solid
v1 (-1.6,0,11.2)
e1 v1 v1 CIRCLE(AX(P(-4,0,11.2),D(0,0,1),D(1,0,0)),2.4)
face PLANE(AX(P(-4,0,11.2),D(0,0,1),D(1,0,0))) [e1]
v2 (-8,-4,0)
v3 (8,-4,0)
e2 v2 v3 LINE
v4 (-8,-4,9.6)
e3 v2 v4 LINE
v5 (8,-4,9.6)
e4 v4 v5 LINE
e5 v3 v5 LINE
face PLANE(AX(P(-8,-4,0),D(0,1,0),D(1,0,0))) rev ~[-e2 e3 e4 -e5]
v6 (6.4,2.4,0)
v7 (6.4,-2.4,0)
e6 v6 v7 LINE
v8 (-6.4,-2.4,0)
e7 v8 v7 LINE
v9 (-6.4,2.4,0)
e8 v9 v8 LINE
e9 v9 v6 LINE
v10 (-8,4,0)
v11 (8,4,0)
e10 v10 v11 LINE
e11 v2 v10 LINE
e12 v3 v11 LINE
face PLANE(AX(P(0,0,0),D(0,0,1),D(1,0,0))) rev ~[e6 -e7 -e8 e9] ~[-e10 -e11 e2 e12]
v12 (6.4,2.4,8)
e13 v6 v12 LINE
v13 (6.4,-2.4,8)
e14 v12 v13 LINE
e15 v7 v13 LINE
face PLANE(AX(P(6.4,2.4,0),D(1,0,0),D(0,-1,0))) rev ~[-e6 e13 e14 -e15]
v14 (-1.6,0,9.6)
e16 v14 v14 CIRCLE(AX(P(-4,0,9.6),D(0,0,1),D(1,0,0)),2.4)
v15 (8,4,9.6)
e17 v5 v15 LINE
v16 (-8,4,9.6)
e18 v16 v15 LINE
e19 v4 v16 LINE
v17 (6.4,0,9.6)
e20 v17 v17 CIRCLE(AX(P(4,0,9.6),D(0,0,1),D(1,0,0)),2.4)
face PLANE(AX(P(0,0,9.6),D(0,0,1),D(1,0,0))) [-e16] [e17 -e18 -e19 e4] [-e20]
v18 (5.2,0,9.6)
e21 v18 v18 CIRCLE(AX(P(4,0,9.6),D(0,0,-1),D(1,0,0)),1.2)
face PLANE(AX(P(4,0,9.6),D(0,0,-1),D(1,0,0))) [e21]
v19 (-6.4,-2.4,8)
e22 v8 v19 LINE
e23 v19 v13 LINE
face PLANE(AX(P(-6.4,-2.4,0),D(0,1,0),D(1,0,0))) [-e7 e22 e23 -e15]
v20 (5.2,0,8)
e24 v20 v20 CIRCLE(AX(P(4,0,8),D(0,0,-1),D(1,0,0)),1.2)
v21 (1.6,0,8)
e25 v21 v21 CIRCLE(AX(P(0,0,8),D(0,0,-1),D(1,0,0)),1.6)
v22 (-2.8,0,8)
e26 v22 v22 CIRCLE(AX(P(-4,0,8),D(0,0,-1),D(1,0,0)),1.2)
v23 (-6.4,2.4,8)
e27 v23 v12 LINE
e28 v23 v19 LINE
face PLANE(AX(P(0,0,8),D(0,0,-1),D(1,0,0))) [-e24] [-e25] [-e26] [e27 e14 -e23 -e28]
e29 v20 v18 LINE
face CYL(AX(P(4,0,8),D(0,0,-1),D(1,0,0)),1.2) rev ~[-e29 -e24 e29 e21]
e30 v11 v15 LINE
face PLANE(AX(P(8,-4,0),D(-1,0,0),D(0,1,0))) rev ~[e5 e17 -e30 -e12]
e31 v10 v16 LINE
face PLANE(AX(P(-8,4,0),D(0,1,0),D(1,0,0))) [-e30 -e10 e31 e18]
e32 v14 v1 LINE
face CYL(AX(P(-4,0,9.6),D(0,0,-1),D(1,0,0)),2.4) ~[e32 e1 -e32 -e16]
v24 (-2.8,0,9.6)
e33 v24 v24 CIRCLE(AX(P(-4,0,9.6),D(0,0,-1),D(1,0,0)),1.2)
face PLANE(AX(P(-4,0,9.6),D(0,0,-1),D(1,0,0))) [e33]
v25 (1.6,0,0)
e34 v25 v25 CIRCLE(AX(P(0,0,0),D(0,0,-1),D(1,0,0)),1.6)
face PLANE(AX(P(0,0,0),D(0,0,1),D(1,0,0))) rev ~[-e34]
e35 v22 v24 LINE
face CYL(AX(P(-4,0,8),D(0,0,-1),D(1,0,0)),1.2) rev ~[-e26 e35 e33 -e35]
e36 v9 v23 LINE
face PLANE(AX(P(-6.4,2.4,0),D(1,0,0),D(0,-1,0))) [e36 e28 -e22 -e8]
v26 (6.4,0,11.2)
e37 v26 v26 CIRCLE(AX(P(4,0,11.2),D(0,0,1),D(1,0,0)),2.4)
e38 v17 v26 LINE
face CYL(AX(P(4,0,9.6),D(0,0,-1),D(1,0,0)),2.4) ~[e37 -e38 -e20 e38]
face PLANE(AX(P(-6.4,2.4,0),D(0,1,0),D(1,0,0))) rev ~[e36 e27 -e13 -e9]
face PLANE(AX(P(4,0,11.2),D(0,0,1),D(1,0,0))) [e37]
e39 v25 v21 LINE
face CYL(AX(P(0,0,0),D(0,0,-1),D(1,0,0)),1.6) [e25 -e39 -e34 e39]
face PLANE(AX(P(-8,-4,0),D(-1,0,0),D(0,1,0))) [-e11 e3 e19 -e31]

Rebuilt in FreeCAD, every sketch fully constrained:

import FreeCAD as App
import Part
import Sketcher


def add_polygon(sketch, points):
    """Adds a closed chain of lines whose ends are joined by coincident constraints."""
    first, n = sketch.GeometryCount, len(points)
    for a, b in zip(points, points[1:] + points[:1]):
        sketch.addGeometry(Part.LineSegment(App.Vector(*a, 0), App.Vector(*b, 0)), False)
    for i in range(n):
        sketch.addConstraint(Sketcher.Constraint("Coincident", first + i, 2, first + (i + 1) % n, 1))

doc = App.newDocument("Part")
body = doc.addObject("PartDesign::Body", "Body")

sketch1 = body.newObject("Sketcher::SketchObject", "Sketch")
sketch1.AttachmentSupport = (doc.getObject("XY_Plane"), [""])
sketch1.MapMode = "FlatFace"
add_polygon(sketch1, [(-8, 4), (-8, -4), (8, -4), (8, 4)])
sketch1.addConstraint([
    Sketcher.Constraint("Vertical", 0),
    Sketcher.Constraint("Horizontal", 1),
    Sketcher.Constraint("Vertical", 2),
    Sketcher.Constraint("Horizontal", 3),
    Sketcher.Constraint("Symmetric", 0, 2, 2, 2, -1, 1),
    Sketcher.Constraint("DistanceX", 1, 1, 1, 2, 16.0),
    Sketcher.Constraint("DistanceY", 0, 2, 0, 1, 8.0),
])
pad1 = body.newObject("PartDesign::Pad", "Pad")
pad1.Profile = sketch1
pad1.Length = 9.6

sketch2 = body.newObject("Sketcher::SketchObject", "Sketch001")
sketch2.AttachmentSupport = (doc.getObject("XY_Plane"), [""])
sketch2.MapMode = "FlatFace"
add_polygon(sketch2, [(-6.4, -2.4), (-6.4, 2.4), (6.4, 2.4), (6.4, -2.4)])
sketch2.addGeometry(Part.Circle(App.Vector(0, 0, 0), App.Vector(0, 0, 1), 1.6), False)
sketch2.addConstraint([
    Sketcher.Constraint("Vertical", 0),
    Sketcher.Constraint("Horizontal", 1),
    Sketcher.Constraint("Vertical", 2),
    Sketcher.Constraint("Horizontal", 3),
    Sketcher.Constraint("Coincident", 4, 3, -1, 1),
    Sketcher.Constraint("Symmetric", 0, 2, 2, 2, -1, 1),
    Sketcher.Constraint("Diameter", 4, 3.2),
    Sketcher.Constraint("DistanceX", 1, 1, 1, 2, 12.8),
    Sketcher.Constraint("DistanceY", 0, 1, 0, 2, 4.8),
])
pocket1 = body.newObject("PartDesign::Pocket", "Pocket")
pocket1.Profile = sketch2
pocket1.Length = 8
pocket1.Reversed = True

sketch3 = body.newObject("Sketcher::SketchObject", "Sketch002")
sketch3.AttachmentSupport = (doc.getObject("XY_Plane"), [""])
sketch3.MapMode = "FlatFace"
sketch3.AttachmentOffset = App.Placement(App.Vector(0, 0, 9.6), App.Rotation())
sketch3.addGeometry([
    Part.Circle(App.Vector(-4, 0, 0), App.Vector(0, 0, 1), 2.4),
    Part.Circle(App.Vector(4, 0, 0), App.Vector(0, 0, 1), 2.4),
], False)
sketch3.addConstraint([
    Sketcher.Constraint("Equal", 0, 1),
    Sketcher.Constraint("Symmetric", 0, 3, 1, 3, -1, 1),
    Sketcher.Constraint("PointOnObject", 0, 3, -1),
    Sketcher.Constraint("Diameter", 0, 4.8),
    Sketcher.Constraint("DistanceX", 0, 3, -1, 1, 4.0),
])
pad2 = body.newObject("PartDesign::Pad", "Pad001")
pad2.Profile = sketch3
pad2.Length = 1.6

sketch4 = body.newObject("Sketcher::SketchObject", "Sketch003")
sketch4.AttachmentSupport = (doc.getObject("XY_Plane"), [""])
sketch4.MapMode = "FlatFace"
sketch4.AttachmentOffset = App.Placement(App.Vector(0, 0, 8), App.Rotation())
sketch4.addGeometry([
    Part.Circle(App.Vector(4, 0, 0), App.Vector(0, 0, 1), 1.2),
    Part.Circle(App.Vector(-4, 0, 0), App.Vector(0, 0, 1), 1.2),
], False)
sketch4.addConstraint([
    Sketcher.Constraint("Equal", 0, 1),
    Sketcher.Constraint("Symmetric", 0, 3, 1, 3, -1, 1),
    Sketcher.Constraint("PointOnObject", 0, 3, -1),
    Sketcher.Constraint("Diameter", 0, 2.4),
    Sketcher.Constraint("DistanceX", -1, 1, 0, 3, 4.0),
])
pocket2 = body.newObject("PartDesign::Pocket", "Pocket001")
pocket2.Profile = sketch4
pocket2.Length = 1.6
pocket2.Reversed = True

doc.recompute()
